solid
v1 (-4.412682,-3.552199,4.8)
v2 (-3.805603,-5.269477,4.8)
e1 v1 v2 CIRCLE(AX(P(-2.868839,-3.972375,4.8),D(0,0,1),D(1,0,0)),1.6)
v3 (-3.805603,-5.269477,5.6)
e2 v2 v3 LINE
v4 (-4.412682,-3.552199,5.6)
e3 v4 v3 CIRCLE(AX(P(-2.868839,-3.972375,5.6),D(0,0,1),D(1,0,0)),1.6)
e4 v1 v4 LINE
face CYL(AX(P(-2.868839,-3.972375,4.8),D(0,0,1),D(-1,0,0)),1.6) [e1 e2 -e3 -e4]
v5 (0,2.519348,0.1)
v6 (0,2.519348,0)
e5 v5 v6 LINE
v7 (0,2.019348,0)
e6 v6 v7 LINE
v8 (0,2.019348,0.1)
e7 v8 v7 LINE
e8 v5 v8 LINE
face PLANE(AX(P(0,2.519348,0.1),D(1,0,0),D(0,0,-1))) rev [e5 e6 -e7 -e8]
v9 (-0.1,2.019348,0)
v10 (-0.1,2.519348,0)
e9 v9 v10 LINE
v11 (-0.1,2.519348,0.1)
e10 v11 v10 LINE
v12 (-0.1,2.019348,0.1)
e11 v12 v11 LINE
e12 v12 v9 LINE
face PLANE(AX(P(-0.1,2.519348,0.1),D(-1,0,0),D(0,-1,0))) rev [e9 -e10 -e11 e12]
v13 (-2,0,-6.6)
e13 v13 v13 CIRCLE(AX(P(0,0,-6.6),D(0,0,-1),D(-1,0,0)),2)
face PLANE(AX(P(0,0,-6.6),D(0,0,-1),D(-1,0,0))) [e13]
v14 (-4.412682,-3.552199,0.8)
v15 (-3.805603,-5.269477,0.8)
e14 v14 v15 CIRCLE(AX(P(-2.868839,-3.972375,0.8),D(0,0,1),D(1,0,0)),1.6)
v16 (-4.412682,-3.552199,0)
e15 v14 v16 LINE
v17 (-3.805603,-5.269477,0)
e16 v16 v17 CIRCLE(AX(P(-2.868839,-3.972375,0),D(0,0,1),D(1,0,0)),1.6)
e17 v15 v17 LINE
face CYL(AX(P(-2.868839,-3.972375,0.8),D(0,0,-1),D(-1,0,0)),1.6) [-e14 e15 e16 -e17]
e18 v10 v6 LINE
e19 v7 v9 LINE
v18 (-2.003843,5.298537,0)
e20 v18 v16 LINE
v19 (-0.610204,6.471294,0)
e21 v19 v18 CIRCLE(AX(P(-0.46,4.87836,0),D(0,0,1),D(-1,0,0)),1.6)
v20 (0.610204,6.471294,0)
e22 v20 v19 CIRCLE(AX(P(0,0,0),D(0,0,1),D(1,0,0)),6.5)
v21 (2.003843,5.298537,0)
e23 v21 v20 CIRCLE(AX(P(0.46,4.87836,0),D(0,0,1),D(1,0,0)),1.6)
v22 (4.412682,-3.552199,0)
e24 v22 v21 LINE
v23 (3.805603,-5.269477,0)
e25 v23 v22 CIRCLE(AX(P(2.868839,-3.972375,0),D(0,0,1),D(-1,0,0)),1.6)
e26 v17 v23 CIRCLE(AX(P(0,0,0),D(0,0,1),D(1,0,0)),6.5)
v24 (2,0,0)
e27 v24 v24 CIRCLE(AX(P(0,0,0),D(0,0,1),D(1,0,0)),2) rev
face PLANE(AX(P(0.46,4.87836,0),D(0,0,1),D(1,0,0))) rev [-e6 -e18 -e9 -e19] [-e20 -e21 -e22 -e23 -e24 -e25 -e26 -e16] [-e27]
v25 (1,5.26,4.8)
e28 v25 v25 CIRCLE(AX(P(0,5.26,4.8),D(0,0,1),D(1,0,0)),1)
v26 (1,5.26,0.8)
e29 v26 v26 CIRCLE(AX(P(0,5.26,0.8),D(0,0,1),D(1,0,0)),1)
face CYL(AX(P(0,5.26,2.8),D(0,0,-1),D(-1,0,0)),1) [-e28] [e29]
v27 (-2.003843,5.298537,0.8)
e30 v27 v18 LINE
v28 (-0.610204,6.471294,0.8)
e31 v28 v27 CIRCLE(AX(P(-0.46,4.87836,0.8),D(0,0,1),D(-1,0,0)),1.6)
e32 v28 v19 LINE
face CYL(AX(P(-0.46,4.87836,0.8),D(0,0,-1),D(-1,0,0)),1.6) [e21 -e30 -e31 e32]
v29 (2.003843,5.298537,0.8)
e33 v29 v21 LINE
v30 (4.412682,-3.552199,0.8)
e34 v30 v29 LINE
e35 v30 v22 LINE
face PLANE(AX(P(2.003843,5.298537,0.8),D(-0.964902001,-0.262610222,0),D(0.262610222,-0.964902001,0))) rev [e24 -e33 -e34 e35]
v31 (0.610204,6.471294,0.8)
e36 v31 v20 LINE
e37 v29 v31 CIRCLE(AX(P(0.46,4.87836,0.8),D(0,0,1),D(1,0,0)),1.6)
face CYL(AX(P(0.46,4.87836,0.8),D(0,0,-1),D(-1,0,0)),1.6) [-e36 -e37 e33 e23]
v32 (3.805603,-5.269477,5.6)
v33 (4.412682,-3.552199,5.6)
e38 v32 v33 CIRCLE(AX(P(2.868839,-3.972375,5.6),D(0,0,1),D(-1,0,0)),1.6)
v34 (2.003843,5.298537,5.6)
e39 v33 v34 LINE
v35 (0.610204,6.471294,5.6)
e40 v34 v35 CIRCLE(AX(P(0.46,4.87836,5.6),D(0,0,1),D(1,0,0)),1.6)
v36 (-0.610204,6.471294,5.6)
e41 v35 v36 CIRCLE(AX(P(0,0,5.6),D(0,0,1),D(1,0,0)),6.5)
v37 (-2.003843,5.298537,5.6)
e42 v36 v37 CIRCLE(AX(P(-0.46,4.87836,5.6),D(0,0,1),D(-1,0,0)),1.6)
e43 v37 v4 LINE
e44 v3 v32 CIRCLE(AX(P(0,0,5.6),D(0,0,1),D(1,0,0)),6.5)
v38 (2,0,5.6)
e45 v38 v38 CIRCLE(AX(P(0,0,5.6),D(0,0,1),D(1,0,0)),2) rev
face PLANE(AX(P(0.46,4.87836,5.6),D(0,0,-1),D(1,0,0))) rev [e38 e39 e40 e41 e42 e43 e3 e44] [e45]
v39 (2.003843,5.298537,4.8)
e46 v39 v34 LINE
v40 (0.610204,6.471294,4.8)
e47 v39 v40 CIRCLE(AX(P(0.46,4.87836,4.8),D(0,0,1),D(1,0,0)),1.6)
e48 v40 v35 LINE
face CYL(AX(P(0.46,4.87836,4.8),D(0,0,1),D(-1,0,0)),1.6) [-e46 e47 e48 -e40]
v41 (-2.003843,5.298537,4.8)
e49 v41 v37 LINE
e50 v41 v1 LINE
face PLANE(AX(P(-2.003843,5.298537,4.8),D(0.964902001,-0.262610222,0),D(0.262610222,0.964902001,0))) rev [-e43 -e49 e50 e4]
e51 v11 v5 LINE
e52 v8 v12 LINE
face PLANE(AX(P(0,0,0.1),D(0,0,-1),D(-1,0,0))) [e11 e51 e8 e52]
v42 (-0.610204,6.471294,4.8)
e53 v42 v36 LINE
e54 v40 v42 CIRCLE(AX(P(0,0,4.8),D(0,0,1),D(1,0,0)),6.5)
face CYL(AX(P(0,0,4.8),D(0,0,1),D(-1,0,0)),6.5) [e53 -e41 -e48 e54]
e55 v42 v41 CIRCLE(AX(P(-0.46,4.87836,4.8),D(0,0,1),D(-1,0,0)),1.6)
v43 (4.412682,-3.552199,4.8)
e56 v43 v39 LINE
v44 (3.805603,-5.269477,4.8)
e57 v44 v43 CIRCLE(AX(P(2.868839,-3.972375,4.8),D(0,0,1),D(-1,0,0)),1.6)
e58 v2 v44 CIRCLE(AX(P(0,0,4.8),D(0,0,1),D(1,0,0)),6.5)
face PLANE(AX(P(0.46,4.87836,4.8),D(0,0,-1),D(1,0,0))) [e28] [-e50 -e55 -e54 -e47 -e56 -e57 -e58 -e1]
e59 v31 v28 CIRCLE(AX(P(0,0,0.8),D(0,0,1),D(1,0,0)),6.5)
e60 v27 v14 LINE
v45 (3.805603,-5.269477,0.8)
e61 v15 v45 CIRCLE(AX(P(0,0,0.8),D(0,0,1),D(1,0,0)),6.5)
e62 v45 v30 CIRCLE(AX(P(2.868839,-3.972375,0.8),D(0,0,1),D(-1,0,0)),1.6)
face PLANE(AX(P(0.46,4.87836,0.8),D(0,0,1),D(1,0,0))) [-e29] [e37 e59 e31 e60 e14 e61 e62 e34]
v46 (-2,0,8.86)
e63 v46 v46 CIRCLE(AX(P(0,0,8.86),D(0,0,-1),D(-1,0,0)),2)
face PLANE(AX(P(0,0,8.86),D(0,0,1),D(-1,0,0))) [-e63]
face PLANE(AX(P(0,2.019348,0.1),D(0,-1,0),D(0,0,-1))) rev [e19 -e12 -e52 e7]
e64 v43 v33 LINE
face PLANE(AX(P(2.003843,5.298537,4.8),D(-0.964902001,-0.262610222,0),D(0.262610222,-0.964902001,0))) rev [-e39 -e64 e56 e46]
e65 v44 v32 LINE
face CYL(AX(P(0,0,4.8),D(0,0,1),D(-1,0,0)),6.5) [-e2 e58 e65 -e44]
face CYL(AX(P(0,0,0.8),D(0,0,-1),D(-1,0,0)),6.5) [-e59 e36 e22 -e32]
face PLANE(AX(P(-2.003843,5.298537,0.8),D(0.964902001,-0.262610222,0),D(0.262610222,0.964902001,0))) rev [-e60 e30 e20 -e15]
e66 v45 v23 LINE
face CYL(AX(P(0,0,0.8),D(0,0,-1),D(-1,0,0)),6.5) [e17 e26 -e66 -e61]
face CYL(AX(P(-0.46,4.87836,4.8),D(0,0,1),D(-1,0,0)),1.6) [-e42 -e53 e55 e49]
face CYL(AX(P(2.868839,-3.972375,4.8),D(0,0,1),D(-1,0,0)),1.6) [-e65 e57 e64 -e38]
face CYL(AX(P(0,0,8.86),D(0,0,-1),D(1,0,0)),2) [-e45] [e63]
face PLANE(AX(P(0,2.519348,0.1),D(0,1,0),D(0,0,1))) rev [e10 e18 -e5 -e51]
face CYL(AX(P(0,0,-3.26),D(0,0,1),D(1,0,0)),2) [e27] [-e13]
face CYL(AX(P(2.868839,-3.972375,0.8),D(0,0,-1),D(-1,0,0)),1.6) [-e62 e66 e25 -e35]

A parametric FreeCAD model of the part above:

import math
import FreeCAD as App
import Part
import Sketcher
from FreeCAD import Vector
Q = App.Units.Quantity


def add_polygon(sketch, points):
    """Adds a closed chain of lines whose ends are joined by coincident constraints."""
    first, n = sketch.GeometryCount, len(points)
    for a, b in zip(points, points[1:] + points[:1]):
        sketch.addGeometry(Part.LineSegment(App.Vector(*a, 0), App.Vector(*b, 0)), False)
    for i in range(n):
        sketch.addConstraint(Sketcher.Constraint("Coincident", first + i, 2, first + (i + 1) % n, 1))

doc = App.newDocument("Part")
body = doc.addObject("PartDesign::Body", "Body")

# Sketch on XY plane
sketch1 = body.newObject("Sketcher::SketchObject", "Sketch")
sketch1.AttachmentSupport = (doc.getObject("XY_Plane"), [""])
sketch1.MapMode = "FlatFace"
sketch1.addGeometry([
    Part.LineSegment(Vector(-2, 5.3, 0), Vector(-4.4, -3.6, 0)),  # 0
    Part.ArcOfCircle(Part.Circle(Vector(-2.9, -4, 0), Vector(0, 0, 1), 1.6), math.radians(165), math.radians(234)),  # 1
    Part.ArcOfCircle(Part.Circle(Vector(0, 0, 0), Vector(0, 0, 1), 6.5), math.radians(-126), math.radians(-54)),  # 2
    Part.ArcOfCircle(Part.Circle(Vector(2.9, -4, 0), Vector(0, 0, 1), 1.6), math.radians(-54), math.radians(15)),  # 3
    Part.LineSegment(Vector(4.4, -3.6, 0), Vector(2, 5.3, 0)),  # 4
    Part.ArcOfCircle(Part.Circle(Vector(0.5, 4.9, 0), Vector(0, 0, 1), 1.6), math.radians(15), math.radians(85)),  # 5
    Part.ArcOfCircle(Part.Circle(Vector(0, 0, 0), Vector(0, 0, 1), 6.5), math.radians(84.61), math.radians(95.39)),  # 6
    Part.ArcOfCircle(Part.Circle(Vector(-0.5, 4.9, 0), Vector(0, 0, 1), 1.6), math.radians(95), math.radians(165)),  # 7
], False)
sketch1.addConstraint([
    Sketcher.Constraint("Tangent", 0, 2, 1, 1),
    Sketcher.Constraint("Tangent", 1, 2, 2, 1),
    Sketcher.Constraint("Tangent", 2, 2, 3, 1),
    Sketcher.Constraint("Tangent", 3, 2, 4, 1),
    Sketcher.Constraint("Tangent", 4, 2, 5, 1),
    Sketcher.Constraint("Tangent", 5, 2, 6, 1),
    Sketcher.Constraint("Tangent", 6, 2, 7, 1),
    Sketcher.Constraint("Tangent", 7, 2, 0, 1),
    Sketcher.Constraint("Coincident", 2, 3, -1, 1),
    Sketcher.Constraint("Coincident", 6, 3, -1, 1),
    Sketcher.Constraint("Equal", 1, 3),
    Sketcher.Constraint("Equal", 3, 5),
    Sketcher.Constraint("Equal", 2, 6),
    Sketcher.Constraint("Equal", 5, 7),
    Sketcher.Constraint("Symmetric", 0, 2, 3, 2, -2),
    Sketcher.Constraint("Radius", 1, Q("1.6 mm")),
    Sketcher.Constraint("Radius", 2, Q("6.5 mm")),
    Sketcher.Constraint("DistanceX", -1, 1, 5, 3, Q("0.46 mm")),
    Sketcher.Constraint("DistanceY", 0, 2, -1, 1, Q("3.552199 mm")),
])
pad1 = body.newObject("PartDesign::Pad", "Pad")
pad1.Profile = sketch1
pad1.Length = 0.8

# Sketch on XY plane
sketch2 = body.newObject("Sketcher::SketchObject", "Sketch001")
sketch2.AttachmentSupport = (doc.getObject("XY_Plane"), [""])
sketch2.MapMode = "FlatFace"
sketch2.AttachmentOffset = App.Placement(Vector(0, 0, 0.8), App.Rotation())
sketch2.addGeometry(Part.Circle(Vector(0, 5.3, 0), Vector(0, 0, 1), 1), False)
sketch2.addConstraint([
    Sketcher.Constraint("PointOnObject", 0, 3, -2),
    Sketcher.Constraint("Diameter", 0, Q("2 mm")),
    Sketcher.Constraint("DistanceY", -1, 1, 0, 3, Q("5.26 mm")),
])
pad2 = body.newObject("PartDesign::Pad", "Pad001")
pad2.Profile = sketch2
pad2.Length = 2

# Sketch on XY plane
sketch3 = body.newObject("Sketcher::SketchObject", "Sketch002")
sketch3.AttachmentSupport = (doc.getObject("XY_Plane"), [""])
sketch3.MapMode = "FlatFace"
sketch3.addGeometry(Part.Circle(Vector(0, 0, 0), Vector(0, 0, 1), 2), False)
sketch3.addConstraint([
    Sketcher.Constraint("Coincident", 0, 3, -1, 1),
    Sketcher.Constraint("Diameter", 0, Q("4 mm")),
])
pad3 = body.newObject("PartDesign::Pad", "Pad002")
pad3.Profile = sketch3
pad3.Length = 3.26
pad3.Reversed = True
body2 = doc.addObject("PartDesign::Body", "Body001")
doc.recompute()

body2.BaseFeature = body
doc.recompute()

mirroring = doc.addObject("Part::Mirroring", "Mirroring")
mirroring.Source = body
mirroring.Base = Vector(0, 5.26, 2.8)
mirroring.Normal = Vector(0, 0, 1)
body3 = doc.addObject("PartDesign::Body", "Body002")
body3.BaseFeature = mirroring
boolean = body2.newObject("PartDesign::Boolean", "Boolean")
boolean.Type = "Fuse"
boolean.addObjects([body3])
doc.recompute()

# Sketch on XY plane
sketch4 = body2.newObject("Sketcher::SketchObject", "Sketch003")
sketch4.AttachmentSupport = (doc.getObject("XY_Plane001"), [""])
sketch4.MapMode = "FlatFace"
sketch4.AttachmentOffset = App.Placement(Vector(0, 0, -3.26), App.Rotation())
sketch4.addGeometry(Part.Circle(Vector(0, 0, 0), Vector(0, 0, 1), 2), False)
sketch4.addConstraint([
    Sketcher.Constraint("Coincident", 0, 3, -1, 1),
    Sketcher.Constraint("Diameter", 0, Q("4 mm")),
])
pad4 = body2.newObject("PartDesign::Pad", "Pad003")
pad4.Profile = sketch4
pad4.Length = 3.34
pad4.Reversed = True

# Sketch on XY plane
sketch5 = body2.newObject("Sketcher::SketchObject", "Sketch004")
sketch5.AttachmentSupport = (doc.getObject("XY_Plane001"), [""])
sketch5.MapMode = "FlatFace"
add_polygon(sketch5, [(0, 2.52), (0, 2.02), (-0.1, 2.02), (-0.1, 2.52)])  # lines 0-3
sketch5.addConstraint([
    Sketcher.Constraint("Vertical", 0),
    Sketcher.Constraint("Horizontal", 1),
    Sketcher.Constraint("Vertical", 2),
    Sketcher.Constraint("Horizontal", 3),
    Sketcher.Constraint("PointOnObject", 0, 2, -2),
    Sketcher.Constraint("DistanceX", 1, 2, 1, 1, Q("0.1 mm")),
    Sketcher.Constraint("DistanceY", 0, 2, 0, 1, Q("0.5 mm")),
    Sketcher.Constraint("DistanceY", -1, 1, 0, 2, Q("2.019348 mm")),
])
pocket1 = body2.newObject("PartDesign::Pocket", "Pocket")
pocket1.Profile = sketch5
pocket1.Length = 0.1
pocket1.Reversed = True
mirroring.Visibility = False

doc.recompute()
